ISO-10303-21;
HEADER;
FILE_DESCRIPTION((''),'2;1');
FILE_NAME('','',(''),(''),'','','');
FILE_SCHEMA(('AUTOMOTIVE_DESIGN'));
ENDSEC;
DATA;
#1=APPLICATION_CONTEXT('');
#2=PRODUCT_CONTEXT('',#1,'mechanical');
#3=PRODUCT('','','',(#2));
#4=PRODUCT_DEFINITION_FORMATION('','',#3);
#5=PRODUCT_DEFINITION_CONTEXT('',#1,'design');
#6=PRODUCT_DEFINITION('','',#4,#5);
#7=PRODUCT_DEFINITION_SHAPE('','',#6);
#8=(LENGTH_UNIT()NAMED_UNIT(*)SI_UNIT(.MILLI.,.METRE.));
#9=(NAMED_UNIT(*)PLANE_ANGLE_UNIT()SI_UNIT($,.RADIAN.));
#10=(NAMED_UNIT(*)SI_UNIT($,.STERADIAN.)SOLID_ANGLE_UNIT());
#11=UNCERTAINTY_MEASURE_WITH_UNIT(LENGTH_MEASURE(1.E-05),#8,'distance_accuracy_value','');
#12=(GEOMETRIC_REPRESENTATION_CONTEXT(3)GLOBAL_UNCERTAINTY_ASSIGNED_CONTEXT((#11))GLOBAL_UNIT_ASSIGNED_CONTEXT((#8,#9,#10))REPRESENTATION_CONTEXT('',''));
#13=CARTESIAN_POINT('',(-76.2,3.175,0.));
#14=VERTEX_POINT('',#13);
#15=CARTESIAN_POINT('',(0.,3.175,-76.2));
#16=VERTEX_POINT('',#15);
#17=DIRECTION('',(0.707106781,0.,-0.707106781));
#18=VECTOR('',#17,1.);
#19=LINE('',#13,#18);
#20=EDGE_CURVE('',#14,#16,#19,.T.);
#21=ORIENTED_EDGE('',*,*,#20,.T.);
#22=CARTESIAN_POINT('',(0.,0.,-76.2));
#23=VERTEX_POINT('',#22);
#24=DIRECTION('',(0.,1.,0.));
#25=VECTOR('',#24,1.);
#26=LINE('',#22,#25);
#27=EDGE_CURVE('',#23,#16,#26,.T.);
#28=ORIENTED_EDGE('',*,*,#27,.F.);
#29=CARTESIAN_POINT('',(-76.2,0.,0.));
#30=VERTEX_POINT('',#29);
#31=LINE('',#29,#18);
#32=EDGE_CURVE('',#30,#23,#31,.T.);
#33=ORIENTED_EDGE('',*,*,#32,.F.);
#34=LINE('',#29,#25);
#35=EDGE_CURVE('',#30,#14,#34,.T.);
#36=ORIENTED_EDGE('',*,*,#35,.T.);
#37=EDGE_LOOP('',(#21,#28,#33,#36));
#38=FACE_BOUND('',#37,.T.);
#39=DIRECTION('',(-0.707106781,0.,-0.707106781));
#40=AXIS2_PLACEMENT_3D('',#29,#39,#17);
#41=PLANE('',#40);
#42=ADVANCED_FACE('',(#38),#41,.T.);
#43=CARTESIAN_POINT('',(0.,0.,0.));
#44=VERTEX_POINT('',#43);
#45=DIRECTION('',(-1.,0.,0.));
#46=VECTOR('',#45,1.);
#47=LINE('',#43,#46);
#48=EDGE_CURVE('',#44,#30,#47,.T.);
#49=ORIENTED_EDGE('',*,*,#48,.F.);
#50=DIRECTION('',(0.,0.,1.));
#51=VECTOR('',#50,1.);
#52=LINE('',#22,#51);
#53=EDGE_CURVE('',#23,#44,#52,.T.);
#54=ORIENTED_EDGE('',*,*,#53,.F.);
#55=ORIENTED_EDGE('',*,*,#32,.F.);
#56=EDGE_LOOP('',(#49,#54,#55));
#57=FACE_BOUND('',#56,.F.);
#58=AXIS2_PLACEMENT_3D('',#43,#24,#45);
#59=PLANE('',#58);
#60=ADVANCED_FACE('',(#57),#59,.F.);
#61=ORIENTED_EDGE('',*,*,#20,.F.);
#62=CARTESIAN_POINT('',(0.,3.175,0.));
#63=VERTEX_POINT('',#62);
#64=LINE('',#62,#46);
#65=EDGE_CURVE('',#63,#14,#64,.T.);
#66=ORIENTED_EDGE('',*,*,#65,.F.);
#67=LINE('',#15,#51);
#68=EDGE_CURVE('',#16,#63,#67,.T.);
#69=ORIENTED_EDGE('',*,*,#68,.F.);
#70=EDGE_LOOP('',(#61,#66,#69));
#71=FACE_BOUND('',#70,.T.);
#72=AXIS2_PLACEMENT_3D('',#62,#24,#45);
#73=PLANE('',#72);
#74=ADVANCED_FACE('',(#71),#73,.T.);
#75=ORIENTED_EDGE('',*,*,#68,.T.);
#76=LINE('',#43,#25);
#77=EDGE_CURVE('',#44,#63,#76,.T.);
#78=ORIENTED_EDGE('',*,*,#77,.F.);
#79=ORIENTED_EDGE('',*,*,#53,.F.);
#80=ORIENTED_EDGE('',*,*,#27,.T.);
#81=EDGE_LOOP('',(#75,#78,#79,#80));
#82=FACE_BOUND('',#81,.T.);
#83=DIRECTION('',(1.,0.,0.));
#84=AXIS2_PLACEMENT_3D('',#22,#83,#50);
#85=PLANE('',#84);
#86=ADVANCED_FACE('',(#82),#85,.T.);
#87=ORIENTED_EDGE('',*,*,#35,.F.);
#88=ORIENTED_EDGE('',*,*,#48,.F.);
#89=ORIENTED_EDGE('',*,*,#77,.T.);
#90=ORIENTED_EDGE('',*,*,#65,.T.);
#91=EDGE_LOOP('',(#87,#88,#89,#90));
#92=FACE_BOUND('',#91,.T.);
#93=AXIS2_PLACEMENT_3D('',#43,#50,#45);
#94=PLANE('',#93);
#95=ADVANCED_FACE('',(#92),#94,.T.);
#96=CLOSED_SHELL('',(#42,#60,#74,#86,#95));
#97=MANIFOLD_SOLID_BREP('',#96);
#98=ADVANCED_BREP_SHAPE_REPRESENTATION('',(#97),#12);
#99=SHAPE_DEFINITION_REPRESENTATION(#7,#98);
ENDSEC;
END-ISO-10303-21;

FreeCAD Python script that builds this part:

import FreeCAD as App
import Part
import Sketcher

V = App.Vector
Q = App.Units.Quantity

doc = App.newDocument("Part")
body = doc.addObject("PartDesign::Body", "Body")

# Sketch on XZ plane
sketch1 = body.newObject("Sketcher::SketchObject", "Sketch")
sketch1.AttachmentSupport = (doc.getObject("XZ_Plane"), [""])
sketch1.MapMode = "FlatFace"
sketch1.addGeometry([
    Part.LineSegment(V(-76, 0, 0), V(0, 0, 0)),
    Part.LineSegment(V(0, 0, 0), V(0, -76, 0)),
    Part.LineSegment(V(0, -76, 0), V(-76, 0, 0)),
], False)
sketch1.addConstraint([
    Sketcher.Constraint("Coincident", 0, 2, 1, 1),
    Sketcher.Constraint("Coincident", 1, 2, 2, 1),
    Sketcher.Constraint("Coincident", 2, 2, 0, 1),
    Sketcher.Constraint("Horizontal", 0),
    Sketcher.Constraint("Vertical", 1),
    Sketcher.Constraint("Coincident", 0, 2, -1, 1),
    Sketcher.Constraint("Equal", 0, 1),
    Sketcher.Constraint("DistanceX", 0, 1, 0, 2, Q("3 in")),
])
pad1 = body.newObject("PartDesign::Pad", "Pad")
pad1.Profile = sketch1
pad1.Length = Q("0.125 in")
pad1.Reversed = True

doc.recompute()
